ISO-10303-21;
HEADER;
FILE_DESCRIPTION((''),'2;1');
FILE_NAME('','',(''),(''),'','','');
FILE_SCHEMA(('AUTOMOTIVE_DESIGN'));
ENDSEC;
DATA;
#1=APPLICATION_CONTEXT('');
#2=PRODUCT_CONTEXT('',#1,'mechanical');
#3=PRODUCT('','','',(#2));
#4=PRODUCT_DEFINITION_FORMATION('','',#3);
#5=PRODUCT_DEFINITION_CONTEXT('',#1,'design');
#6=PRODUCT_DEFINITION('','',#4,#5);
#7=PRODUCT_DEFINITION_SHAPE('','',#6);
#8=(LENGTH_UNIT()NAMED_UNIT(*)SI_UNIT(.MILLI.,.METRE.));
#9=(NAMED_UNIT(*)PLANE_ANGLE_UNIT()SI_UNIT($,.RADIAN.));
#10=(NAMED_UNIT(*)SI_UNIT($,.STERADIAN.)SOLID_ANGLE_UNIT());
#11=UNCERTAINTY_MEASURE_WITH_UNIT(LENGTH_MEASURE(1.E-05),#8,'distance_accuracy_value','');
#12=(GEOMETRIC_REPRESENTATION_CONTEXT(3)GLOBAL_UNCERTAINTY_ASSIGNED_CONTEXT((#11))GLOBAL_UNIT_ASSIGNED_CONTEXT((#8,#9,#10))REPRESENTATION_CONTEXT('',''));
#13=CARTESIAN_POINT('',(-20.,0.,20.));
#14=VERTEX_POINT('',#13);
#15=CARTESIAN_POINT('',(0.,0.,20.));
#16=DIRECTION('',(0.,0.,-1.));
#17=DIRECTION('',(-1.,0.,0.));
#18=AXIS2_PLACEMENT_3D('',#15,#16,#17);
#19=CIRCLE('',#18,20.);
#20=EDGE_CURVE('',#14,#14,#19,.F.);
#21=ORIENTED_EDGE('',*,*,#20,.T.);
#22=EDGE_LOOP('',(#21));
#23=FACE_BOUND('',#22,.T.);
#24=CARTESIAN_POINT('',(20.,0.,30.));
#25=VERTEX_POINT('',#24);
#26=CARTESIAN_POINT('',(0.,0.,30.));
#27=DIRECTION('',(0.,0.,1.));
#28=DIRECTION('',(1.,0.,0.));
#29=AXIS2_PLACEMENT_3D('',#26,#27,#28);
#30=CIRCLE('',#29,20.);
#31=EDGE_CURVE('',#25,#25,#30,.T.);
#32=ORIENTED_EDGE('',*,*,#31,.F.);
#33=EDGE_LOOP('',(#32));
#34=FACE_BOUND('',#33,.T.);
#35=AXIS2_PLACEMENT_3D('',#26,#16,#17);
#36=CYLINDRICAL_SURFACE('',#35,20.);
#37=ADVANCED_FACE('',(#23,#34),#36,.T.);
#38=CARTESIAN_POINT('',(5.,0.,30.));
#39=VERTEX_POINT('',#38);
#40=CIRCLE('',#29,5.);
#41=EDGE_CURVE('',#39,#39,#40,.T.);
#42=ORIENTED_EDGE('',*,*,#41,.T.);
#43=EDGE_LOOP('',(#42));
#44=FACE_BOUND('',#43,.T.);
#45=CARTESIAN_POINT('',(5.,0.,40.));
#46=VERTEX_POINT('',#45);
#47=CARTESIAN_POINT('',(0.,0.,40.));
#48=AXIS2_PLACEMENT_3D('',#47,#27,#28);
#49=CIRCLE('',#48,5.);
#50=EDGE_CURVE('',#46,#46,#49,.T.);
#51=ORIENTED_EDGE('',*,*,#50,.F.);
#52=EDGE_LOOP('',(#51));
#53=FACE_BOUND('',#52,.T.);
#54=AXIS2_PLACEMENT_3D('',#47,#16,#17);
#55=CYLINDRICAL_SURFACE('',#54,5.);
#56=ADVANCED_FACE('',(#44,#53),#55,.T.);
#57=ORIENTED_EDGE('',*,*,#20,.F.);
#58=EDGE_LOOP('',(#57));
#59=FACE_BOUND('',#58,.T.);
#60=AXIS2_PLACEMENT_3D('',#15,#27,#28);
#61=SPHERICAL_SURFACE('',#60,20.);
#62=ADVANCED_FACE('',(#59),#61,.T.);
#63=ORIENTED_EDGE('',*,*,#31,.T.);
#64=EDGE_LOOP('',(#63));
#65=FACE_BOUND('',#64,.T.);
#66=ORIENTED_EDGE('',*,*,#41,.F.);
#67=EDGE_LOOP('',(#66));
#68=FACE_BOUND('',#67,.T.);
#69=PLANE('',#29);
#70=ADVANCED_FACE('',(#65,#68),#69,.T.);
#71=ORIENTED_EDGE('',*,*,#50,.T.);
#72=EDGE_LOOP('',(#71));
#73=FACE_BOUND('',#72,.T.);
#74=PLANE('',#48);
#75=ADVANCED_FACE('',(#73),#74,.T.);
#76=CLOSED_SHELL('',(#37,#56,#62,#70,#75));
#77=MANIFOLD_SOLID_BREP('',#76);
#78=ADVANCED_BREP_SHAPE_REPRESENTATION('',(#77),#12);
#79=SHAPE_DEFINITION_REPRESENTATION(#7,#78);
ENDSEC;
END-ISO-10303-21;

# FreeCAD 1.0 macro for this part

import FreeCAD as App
import Part
import Sketcher

V = App.Vector


def edges_at(feature, points):
    """Names of the edges that pass closest to the given points."""
    edges = feature.Shape.Edges
    near = lambda p: min(range(len(edges)), key=lambda i: edges[i].distToShape(Part.Vertex(*p))[0])
    return sorted({f"Edge{near(p) + 1}" for p in points})

doc = App.newDocument("Part")
body = doc.addObject("PartDesign::Body", "Body")

# Sketch on XY plane
sketch1 = doc.addObject("Sketcher::SketchObject", "Sketch")
body.addObject(sketch1)
sketch1.AttachmentSupport = (doc.XY_Plane, [""])
sketch1.MapMode = "FlatFace"
sketch1.addGeometry(Part.Circle(V(0, 0, 0), V(0, 0, 1), 20), False)
sketch1.addConstraint([
    Sketcher.Constraint("Coincident", 0, 3, -1, 1),
    Sketcher.Constraint("Diameter", 0, 40.0),
])
pad1 = doc.addObject("PartDesign::Pad", "Pad")
body.addObject(pad1)
pad1.Profile = sketch1
pad1.Length = 30

# Sketch on XY plane
sketch2 = doc.addObject("Sketcher::SketchObject", "Sketch001")
body.addObject(sketch2)
sketch2.AttachmentSupport = (doc.XY_Plane, [""])
sketch2.MapMode = "FlatFace"
sketch2.AttachmentOffset = App.Placement(V(0, 0, 30), App.Rotation())
sketch2.addGeometry(Part.Circle(V(0, 0, 0), V(0, 0, 1), 5), False)
sketch2.addConstraint([
    Sketcher.Constraint("Coincident", 0, 3, -1, 1),
    Sketcher.Constraint("Diameter", 0, 10.0),
])
pad2 = doc.addObject("PartDesign::Pad", "Pad001")
body.addObject(pad2)
pad2.Profile = sketch2
pad2.Length = 10
doc.recompute()

fillet = doc.addObject("PartDesign::Fillet", "Fillet")
body.addObject(fillet)
fillet.Base = (pad2, edges_at(pad2, [(-20, 0, 0)]))
fillet.Radius = 20

doc.recompute()
